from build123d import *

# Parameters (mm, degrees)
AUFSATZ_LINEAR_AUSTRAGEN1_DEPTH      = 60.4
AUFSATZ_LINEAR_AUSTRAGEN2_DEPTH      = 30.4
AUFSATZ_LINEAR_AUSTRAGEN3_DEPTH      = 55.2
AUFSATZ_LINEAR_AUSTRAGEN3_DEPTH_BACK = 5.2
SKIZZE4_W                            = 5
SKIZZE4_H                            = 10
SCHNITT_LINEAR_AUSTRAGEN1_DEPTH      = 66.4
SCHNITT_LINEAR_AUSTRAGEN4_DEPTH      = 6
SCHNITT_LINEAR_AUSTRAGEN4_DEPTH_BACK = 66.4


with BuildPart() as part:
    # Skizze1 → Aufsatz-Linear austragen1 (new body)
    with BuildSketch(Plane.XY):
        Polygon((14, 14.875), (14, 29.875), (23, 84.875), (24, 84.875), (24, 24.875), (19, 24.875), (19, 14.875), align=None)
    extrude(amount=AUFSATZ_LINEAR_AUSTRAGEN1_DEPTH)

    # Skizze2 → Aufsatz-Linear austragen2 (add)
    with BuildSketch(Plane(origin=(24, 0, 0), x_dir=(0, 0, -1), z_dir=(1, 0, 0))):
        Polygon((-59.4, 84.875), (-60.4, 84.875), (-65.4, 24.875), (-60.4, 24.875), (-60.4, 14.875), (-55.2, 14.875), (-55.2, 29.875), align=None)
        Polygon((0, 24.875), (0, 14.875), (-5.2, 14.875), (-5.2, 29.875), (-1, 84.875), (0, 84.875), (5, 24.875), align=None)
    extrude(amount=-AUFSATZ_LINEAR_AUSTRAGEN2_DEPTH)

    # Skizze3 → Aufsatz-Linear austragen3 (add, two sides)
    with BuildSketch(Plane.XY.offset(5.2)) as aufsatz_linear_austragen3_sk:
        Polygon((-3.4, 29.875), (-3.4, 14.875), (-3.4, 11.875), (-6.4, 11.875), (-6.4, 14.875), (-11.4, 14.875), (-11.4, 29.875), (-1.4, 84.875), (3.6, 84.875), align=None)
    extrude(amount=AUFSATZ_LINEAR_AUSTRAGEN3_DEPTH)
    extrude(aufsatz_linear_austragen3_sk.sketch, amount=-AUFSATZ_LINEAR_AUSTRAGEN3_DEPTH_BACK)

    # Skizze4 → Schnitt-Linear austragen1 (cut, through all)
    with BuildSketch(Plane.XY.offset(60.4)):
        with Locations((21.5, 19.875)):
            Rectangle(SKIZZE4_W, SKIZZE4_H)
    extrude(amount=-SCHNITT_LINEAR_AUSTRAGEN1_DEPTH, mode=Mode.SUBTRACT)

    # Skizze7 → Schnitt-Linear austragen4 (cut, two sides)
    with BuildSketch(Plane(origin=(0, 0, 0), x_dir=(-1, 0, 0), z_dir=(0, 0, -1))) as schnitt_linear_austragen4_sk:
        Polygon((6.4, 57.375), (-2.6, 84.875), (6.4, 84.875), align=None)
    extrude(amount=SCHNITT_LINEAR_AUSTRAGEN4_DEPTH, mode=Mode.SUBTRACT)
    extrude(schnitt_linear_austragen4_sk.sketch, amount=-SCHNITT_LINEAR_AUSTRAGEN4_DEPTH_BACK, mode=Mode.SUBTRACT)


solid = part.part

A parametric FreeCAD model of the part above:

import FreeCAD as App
import Part
import Sketcher

V = App.Vector

doc = App.newDocument("Part")
body = doc.addObject("PartDesign::Body", "Body")

sketch1 = doc.addObject("Sketcher::SketchObject", "Sketch")
body.addObject(sketch1)
sketch1.AttachmentSupport = (doc.XY_Plane, [""])
sketch1.MapMode = "FlatFace"
sketch1.addGeometry(Part.LineSegment(V(14, 29.9, 0), V(14, 14.9, 0)), False)
sketch1.addGeometry(Part.LineSegment(V(14, 14.9, 0), V(19, 14.9, 0)), False)
sketch1.addGeometry(Part.LineSegment(V(19, 14.9, 0), V(19, 24.9, 0)), False)
sketch1.addGeometry(Part.LineSegment(V(19, 24.9, 0), V(24, 24.9, 0)), False)
sketch1.addGeometry(Part.LineSegment(V(24, 24.9, 0), V(24, 84.9, 0)), False)
sketch1.addGeometry(Part.LineSegment(V(24, 84.9, 0), V(23, 84.9, 0)), False)
sketch1.addGeometry(Part.LineSegment(V(23, 84.9, 0), V(14, 29.9, 0)), False)
sketch1.addConstraint(Sketcher.Constraint("Coincident", 0, 2, 1, 1))
sketch1.addConstraint(Sketcher.Constraint("Coincident", 1, 2, 2, 1))
sketch1.addConstraint(Sketcher.Constraint("Coincident", 2, 2, 3, 1))
sketch1.addConstraint(Sketcher.Constraint("Coincident", 3, 2, 4, 1))
sketch1.addConstraint(Sketcher.Constraint("Coincident", 4, 2, 5, 1))
sketch1.addConstraint(Sketcher.Constraint("Coincident", 5, 2, 6, 1))
sketch1.addConstraint(Sketcher.Constraint("Coincident", 6, 2, 0, 1))
sketch1.addConstraint(Sketcher.Constraint("Vertical", 0))
sketch1.addConstraint(Sketcher.Constraint("Horizontal", 1))
sketch1.addConstraint(Sketcher.Constraint("Vertical", 2))
sketch1.addConstraint(Sketcher.Constraint("Horizontal", 3))
sketch1.addConstraint(Sketcher.Constraint("Vertical", 4))
sketch1.addConstraint(Sketcher.Constraint("Horizontal", 5))
sketch1.addConstraint(Sketcher.Constraint("Equal", 1, 3))
sketch1.addConstraint(Sketcher.Constraint("DistanceX", 1, 1, 1, 2, 5.0))
sketch1.addConstraint(Sketcher.Constraint("DistanceX", 5, 2, 5, 1, 1.0))
sketch1.addConstraint(Sketcher.Constraint("DistanceY", 0, 2, 0, 1, 15.0))
sketch1.addConstraint(Sketcher.Constraint("DistanceY", 2, 1, 2, 2, 10.0))
sketch1.addConstraint(Sketcher.Constraint("DistanceY", 4, 1, 4, 2, 60.0))
sketch1.addConstraint(Sketcher.Constraint("DistanceX", -1, 1, 0, 2, 14.0))
sketch1.addConstraint(Sketcher.Constraint("DistanceY", -1, 1, 0, 2, 14.875))
pad1 = doc.addObject("PartDesign::Pad", "Pad")
body.addObject(pad1)
pad1.Profile = sketch1
pad1.Length = 60.4

sketch2 = doc.addObject("Sketcher::SketchObject", "Sketch001")
body.addObject(sketch2)
sketch2.AttachmentSupport = (doc.YZ_Plane, [""])
sketch2.MapMode = "FlatFace"
sketch2.AttachmentOffset = App.Placement(V(0, 0, 24), App.Rotation())
sketch2.addGeometry(Part.LineSegment(V(84.9, 59.4, 0), V(84.9, 60.4, 0)), False)
sketch2.addGeometry(Part.LineSegment(V(84.9, 60.4, 0), V(24.9, 65.4, 0)), False)
sketch2.addGeometry(Part.LineSegment(V(24.9, 65.4, 0), V(24.9, 60.4, 0)), False)
sketch2.addGeometry(Part.LineSegment(V(24.9, 60.4, 0), V(14.9, 60.4, 0)), False)
sketch2.addGeometry(Part.LineSegment(V(14.9, 60.4, 0), V(14.9, 55.2, 0)), False)
sketch2.addGeometry(Part.LineSegment(V(14.9, 55.2, 0), V(29.9, 55.2, 0)), False)
sketch2.addGeometry(Part.LineSegment(V(29.9, 55.2, 0), V(84.9, 59.4, 0)), False)
sketch2.addGeometry(Part.LineSegment(V(14.9, 0, 0), V(24.9, 0, 0)), False)
sketch2.addGeometry(Part.LineSegment(V(24.9, 0, 0), V(24.9, -5, 0)), False)
sketch2.addGeometry(Part.LineSegment(V(24.9, -5, 0), V(84.9, 0, 0)), False)
sketch2.addGeometry(Part.LineSegment(V(84.9, 0, 0), V(84.9, 1, 0)), False)
sketch2.addGeometry(Part.LineSegment(V(84.9, 1, 0), V(29.9, 5.2, 0)), False)
sketch2.addGeometry(Part.LineSegment(V(29.9, 5.2, 0), V(14.9, 5.2, 0)), False)
sketch2.addGeometry(Part.LineSegment(V(14.9, 5.2, 0), V(14.9, 0, 0)), False)
sketch2.addConstraint(Sketcher.Constraint("Coincident", 0, 2, 1, 1))
sketch2.addConstraint(Sketcher.Constraint("Coincident", 1, 2, 2, 1))
sketch2.addConstraint(Sketcher.Constraint("Coincident", 2, 2, 3, 1))
sketch2.addConstraint(Sketcher.Constraint("Coincident", 3, 2, 4, 1))
sketch2.addConstraint(Sketcher.Constraint("Coincident", 4, 2, 5, 1))
sketch2.addConstraint(Sketcher.Constraint("Coincident", 5, 2, 6, 1))
sketch2.addConstraint(Sketcher.Constraint("Coincident", 6, 2, 0, 1))
sketch2.addConstraint(Sketcher.Constraint("Coincident", 7, 2, 8, 1))
sketch2.addConstraint(Sketcher.Constraint("Coincident", 8, 2, 9, 1))
sketch2.addConstraint(Sketcher.Constraint("Coincident", 9, 2, 10, 1))
sketch2.addConstraint(Sketcher.Constraint("Coincident", 10, 2, 11, 1))
sketch2.addConstraint(Sketcher.Constraint("Coincident", 11, 2, 12, 1))
sketch2.addConstraint(Sketcher.Constraint("Coincident", 12, 2, 13, 1))
sketch2.addConstraint(Sketcher.Constraint("Coincident", 13, 2, 7, 1))
sketch2.addConstraint(Sketcher.Constraint("Vertical", 0))
sketch2.addConstraint(Sketcher.Constraint("Vertical", 2))
sketch2.addConstraint(Sketcher.Constraint("Horizontal", 3))
sketch2.addConstraint(Sketcher.Constraint("Vertical", 4))
sketch2.addConstraint(Sketcher.Constraint("Horizontal", 5))
sketch2.addConstraint(Sketcher.Constraint("Horizontal", 7))
sketch2.addConstraint(Sketcher.Constraint("Vertical", 8))
sketch2.addConstraint(Sketcher.Constraint("Vertical", 10))
sketch2.addConstraint(Sketcher.Constraint("Horizontal", 12))
sketch2.addConstraint(Sketcher.Constraint("Vertical", 13))
sketch2.addConstraint(Sketcher.Constraint("PointOnObject", 7, 2, -1))
sketch2.addConstraint(Sketcher.Constraint("PointOnObject", 9, 2, -1))
sketch2.addConstraint(Sketcher.Constraint("Horizontal", 0, 2, 2, 2))
sketch2.addConstraint(Sketcher.Constraint("Vertical", 2, 2, 7, 2))
sketch2.addConstraint(Sketcher.Constraint("Vertical", 6, 2, 9, 2))
sketch2.addConstraint(Sketcher.Constraint("Vertical", 5, 2, 11, 2))
sketch2.addConstraint(Sketcher.Constraint("Vertical", 4, 2, 12, 2))
sketch2.addConstraint(Sketcher.Constraint("Equal", 2, 8))
sketch2.addConstraint(Sketcher.Constraint("Equal", 0, 10))
sketch2.addConstraint(Sketcher.Constraint("Equal", 4, 13))
sketch2.addConstraint(Sketcher.Constraint("DistanceX", 3, 2, 3, 1, 10.0))
sketch2.addConstraint(Sketcher.Constraint("DistanceX", 5, 1, 5, 2, 15.0))
sketch2.addConstraint(Sketcher.Constraint("DistanceY", 0, 1, 0, 2, 1.0))
sketch2.addConstraint(Sketcher.Constraint("DistanceY", 2, 2, 2, 1, 5.0))
sketch2.addConstraint(Sketcher.Constraint("DistanceY", 4, 2, 4, 1, 5.2))
sketch2.addConstraint(Sketcher.Constraint("DistanceX", 1, 2, 0, 2, 60.0))
sketch2.addConstraint(Sketcher.Constraint("DistanceY", 11, 2, 5, 2, 50.0))
sketch2.addConstraint(Sketcher.Constraint("DistanceX", -1, 1, 0, 2, 84.875))
pad2 = doc.addObject("PartDesign::Pad", "Pad001")
body.addObject(pad2)
pad2.Profile = sketch2
pad2.Length = 30.4
pad2.Reversed = True

sketch3 = doc.addObject("Sketcher::SketchObject", "Sketch002")
body.addObject(sketch3)
sketch3.AttachmentSupport = (doc.XY_Plane, [""])
sketch3.MapMode = "FlatFace"
sketch3.AttachmentOffset = App.Placement(V(0, 0, 5.2), App.Rotation())
sketch3.addGeometry(Part.LineSegment(V(-3.4, 11.9, 0), V(-3.4, 29.9, 0)), False)
sketch3.addGeometry(Part.LineSegment(V(-3.4, 29.9, 0), V(3.6, 84.9, 0)), False)
sketch3.addGeometry(Part.LineSegment(V(3.6, 84.9, 0), V(-1.4, 84.9, 0)), False)
sketch3.addGeometry(Part.LineSegment(V(-1.4, 84.9, 0), V(-11.4, 29.9, 0)), False)
sketch3.addGeometry(Part.LineSegment(V(-11.4, 29.9, 0), V(-11.4, 14.9, 0)), False)
sketch3.addGeometry(Part.LineSegment(V(-11.4, 14.9, 0), V(-6.4, 14.9, 0)), False)
sketch3.addGeometry(Part.LineSegment(V(-6.4, 14.9, 0), V(-6.4, 11.9, 0)), False)
sketch3.addGeometry(Part.LineSegment(V(-6.4, 11.9, 0), V(-3.4, 11.9, 0)), False)
sketch3.addConstraint(Sketcher.Constraint("Coincident", 0, 2, 1, 1))
sketch3.addConstraint(Sketcher.Constraint("Coincident", 1, 2, 2, 1))
sketch3.addConstraint(Sketcher.Constraint("Coincident", 2, 2, 3, 1))
sketch3.addConstraint(Sketcher.Constraint("Coincident", 3, 2, 4, 1))
sketch3.addConstraint(Sketcher.Constraint("Coincident", 4, 2, 5, 1))
sketch3.addConstraint(Sketcher.Constraint("Coincident", 5, 2, 6, 1))
sketch3.addConstraint(Sketcher.Constraint("Coincident", 6, 2, 7, 1))
sketch3.addConstraint(Sketcher.Constraint("Coincident", 7, 2, 0, 1))
sketch3.addConstraint(Sketcher.Constraint("Vertical", 0))
sketch3.addConstraint(Sketcher.Constraint("Horizontal", 2))
sketch3.addConstraint(Sketcher.Constraint("Vertical", 4))
sketch3.addConstraint(Sketcher.Constraint("Horizontal", 5))
sketch3.addConstraint(Sketcher.Constraint("Vertical", 6))
sketch3.addConstraint(Sketcher.Constraint("Horizontal", 7))
sketch3.addConstraint(Sketcher.Constraint("Horizontal", 0, 2, 3, 2))
sketch3.addConstraint(Sketcher.Constraint("Equal", 2, 5))
sketch3.addConstraint(Sketcher.Constraint("Equal", 7, 6))
sketch3.addConstraint(Sketcher.Constraint("DistanceX", 2, 2, 2, 1, 5.0))
sketch3.addConstraint(Sketcher.Constraint("DistanceX", 7, 1, 7, 2, 3.0))
sketch3.addConstraint(Sketcher.Constraint("DistanceY", 0, 1, 0, 2, 18.0))
sketch3.addConstraint(Sketcher.Constraint("DistanceX", 0, 2, 1, 2, 7.0))
sketch3.addConstraint(Sketcher.Constraint("DistanceY", 0, 2, 1, 2, 55.0))
sketch3.addConstraint(Sketcher.Constraint("DistanceX", 0, 2, -1, 1, 3.4))
sketch3.addConstraint(Sketcher.Constraint("DistanceY", -1, 1, 0, 2, 29.875))
pad3 = doc.addObject("PartDesign::Pad", "Pad002")
body.addObject(pad3)
pad3.Profile = sketch3
pad3.Type = "TwoLengths"
pad3.Length = 55.2
pad3.Length2 = 5.2

sketch4 = doc.addObject("Sketcher::SketchObject", "Sketch003")
body.addObject(sketch4)
sketch4.AttachmentSupport = (doc.XY_Plane, [""])
sketch4.MapMode = "FlatFace"
sketch4.AttachmentOffset = App.Placement(V(0, 0, 60.4), App.Rotation())
sketch4.addGeometry(Part.LineSegment(V(19, 25, 0), V(19, 15, 0)), False)
sketch4.addGeometry(Part.LineSegment(V(19, 15, 0), V(24, 15, 0)), False)
sketch4.addGeometry(Part.LineSegment(V(24, 15, 0), V(24, 25, 0)), False)
sketch4.addGeometry(Part.LineSegment(V(24, 25, 0), V(19, 25, 0)), False)
sketch4.addConstraint(Sketcher.Constraint("Coincident", 0, 2, 1, 1))
sketch4.addConstraint(Sketcher.Constraint("Coincident", 1, 2, 2, 1))
sketch4.addConstraint(Sketcher.Constraint("Coincident", 2, 2, 3, 1))
sketch4.addConstraint(Sketcher.Constraint("Coincident", 3, 2, 0, 1))
sketch4.addConstraint(Sketcher.Constraint("Vertical", 0))
sketch4.addConstraint(Sketcher.Constraint("Horizontal", 1))
sketch4.addConstraint(Sketcher.Constraint("Vertical", 2))
sketch4.addConstraint(Sketcher.Constraint("Horizontal", 3))
sketch4.addConstraint(Sketcher.Constraint("DistanceX", 1, 1, 1, 2, 5.0))
sketch4.addConstraint(Sketcher.Constraint("DistanceY", 0, 2, 0, 1, 10.0))
sketch4.addConstraint(Sketcher.Constraint("DistanceX", -1, 1, 0, 2, 19.0))
sketch4.addConstraint(Sketcher.Constraint("DistanceY", -1, 1, 0, 2, 14.875))
pocket1 = doc.addObject("PartDesign::Pocket", "Pocket")
body.addObject(pocket1)
pocket1.Profile = sketch4
pocket1.Type = "ThroughAll"

sketch5 = doc.addObject("Sketcher::SketchObject", "Sketch004")
body.addObject(sketch5)
sketch5.AttachmentSupport = (doc.XY_Plane, [""])
sketch5.MapMode = "FlatFace"
sketch5.addGeometry(Part.LineSegment(V(3, 85, 0), V(-6, 57, 0)), False)
sketch5.addGeometry(Part.LineSegment(V(-6, 57, 0), V(-6, 85, 0)), False)
sketch5.addGeometry(Part.LineSegment(V(-6, 85, 0), V(3, 85, 0)), False)
sketch5.addConstraint(Sketcher.Constraint("Coincident", 0, 2, 1, 1))
sketch5.addConstraint(Sketcher.Constraint("Coincident", 1, 2, 2, 1))
sketch5.addConstraint(Sketcher.Constraint("Coincident", 2, 2, 0, 1))
sketch5.addConstraint(Sketcher.Constraint("Vertical", 1))
sketch5.addConstraint(Sketcher.Constraint("Horizontal", 2))
sketch5.addConstraint(Sketcher.Constraint("DistanceX", 2, 1, 2, 2, 9.0))
sketch5.addConstraint(Sketcher.Constraint("DistanceY", 1, 1, 1, 2, 27.5))
sketch5.addConstraint(Sketcher.Constraint("DistanceX", 0, 2, -1, 1, 6.4))
sketch5.addConstraint(Sketcher.Constraint("DistanceY", -1, 1, 0, 2, 57.375))
pocket2 = doc.addObject("PartDesign::Pocket", "Pocket001")
body.addObject(pocket2)
pocket2.Profile = sketch5
pocket2.Type = "ThroughAll"
pocket2.Midplane = True

doc.recompute()
